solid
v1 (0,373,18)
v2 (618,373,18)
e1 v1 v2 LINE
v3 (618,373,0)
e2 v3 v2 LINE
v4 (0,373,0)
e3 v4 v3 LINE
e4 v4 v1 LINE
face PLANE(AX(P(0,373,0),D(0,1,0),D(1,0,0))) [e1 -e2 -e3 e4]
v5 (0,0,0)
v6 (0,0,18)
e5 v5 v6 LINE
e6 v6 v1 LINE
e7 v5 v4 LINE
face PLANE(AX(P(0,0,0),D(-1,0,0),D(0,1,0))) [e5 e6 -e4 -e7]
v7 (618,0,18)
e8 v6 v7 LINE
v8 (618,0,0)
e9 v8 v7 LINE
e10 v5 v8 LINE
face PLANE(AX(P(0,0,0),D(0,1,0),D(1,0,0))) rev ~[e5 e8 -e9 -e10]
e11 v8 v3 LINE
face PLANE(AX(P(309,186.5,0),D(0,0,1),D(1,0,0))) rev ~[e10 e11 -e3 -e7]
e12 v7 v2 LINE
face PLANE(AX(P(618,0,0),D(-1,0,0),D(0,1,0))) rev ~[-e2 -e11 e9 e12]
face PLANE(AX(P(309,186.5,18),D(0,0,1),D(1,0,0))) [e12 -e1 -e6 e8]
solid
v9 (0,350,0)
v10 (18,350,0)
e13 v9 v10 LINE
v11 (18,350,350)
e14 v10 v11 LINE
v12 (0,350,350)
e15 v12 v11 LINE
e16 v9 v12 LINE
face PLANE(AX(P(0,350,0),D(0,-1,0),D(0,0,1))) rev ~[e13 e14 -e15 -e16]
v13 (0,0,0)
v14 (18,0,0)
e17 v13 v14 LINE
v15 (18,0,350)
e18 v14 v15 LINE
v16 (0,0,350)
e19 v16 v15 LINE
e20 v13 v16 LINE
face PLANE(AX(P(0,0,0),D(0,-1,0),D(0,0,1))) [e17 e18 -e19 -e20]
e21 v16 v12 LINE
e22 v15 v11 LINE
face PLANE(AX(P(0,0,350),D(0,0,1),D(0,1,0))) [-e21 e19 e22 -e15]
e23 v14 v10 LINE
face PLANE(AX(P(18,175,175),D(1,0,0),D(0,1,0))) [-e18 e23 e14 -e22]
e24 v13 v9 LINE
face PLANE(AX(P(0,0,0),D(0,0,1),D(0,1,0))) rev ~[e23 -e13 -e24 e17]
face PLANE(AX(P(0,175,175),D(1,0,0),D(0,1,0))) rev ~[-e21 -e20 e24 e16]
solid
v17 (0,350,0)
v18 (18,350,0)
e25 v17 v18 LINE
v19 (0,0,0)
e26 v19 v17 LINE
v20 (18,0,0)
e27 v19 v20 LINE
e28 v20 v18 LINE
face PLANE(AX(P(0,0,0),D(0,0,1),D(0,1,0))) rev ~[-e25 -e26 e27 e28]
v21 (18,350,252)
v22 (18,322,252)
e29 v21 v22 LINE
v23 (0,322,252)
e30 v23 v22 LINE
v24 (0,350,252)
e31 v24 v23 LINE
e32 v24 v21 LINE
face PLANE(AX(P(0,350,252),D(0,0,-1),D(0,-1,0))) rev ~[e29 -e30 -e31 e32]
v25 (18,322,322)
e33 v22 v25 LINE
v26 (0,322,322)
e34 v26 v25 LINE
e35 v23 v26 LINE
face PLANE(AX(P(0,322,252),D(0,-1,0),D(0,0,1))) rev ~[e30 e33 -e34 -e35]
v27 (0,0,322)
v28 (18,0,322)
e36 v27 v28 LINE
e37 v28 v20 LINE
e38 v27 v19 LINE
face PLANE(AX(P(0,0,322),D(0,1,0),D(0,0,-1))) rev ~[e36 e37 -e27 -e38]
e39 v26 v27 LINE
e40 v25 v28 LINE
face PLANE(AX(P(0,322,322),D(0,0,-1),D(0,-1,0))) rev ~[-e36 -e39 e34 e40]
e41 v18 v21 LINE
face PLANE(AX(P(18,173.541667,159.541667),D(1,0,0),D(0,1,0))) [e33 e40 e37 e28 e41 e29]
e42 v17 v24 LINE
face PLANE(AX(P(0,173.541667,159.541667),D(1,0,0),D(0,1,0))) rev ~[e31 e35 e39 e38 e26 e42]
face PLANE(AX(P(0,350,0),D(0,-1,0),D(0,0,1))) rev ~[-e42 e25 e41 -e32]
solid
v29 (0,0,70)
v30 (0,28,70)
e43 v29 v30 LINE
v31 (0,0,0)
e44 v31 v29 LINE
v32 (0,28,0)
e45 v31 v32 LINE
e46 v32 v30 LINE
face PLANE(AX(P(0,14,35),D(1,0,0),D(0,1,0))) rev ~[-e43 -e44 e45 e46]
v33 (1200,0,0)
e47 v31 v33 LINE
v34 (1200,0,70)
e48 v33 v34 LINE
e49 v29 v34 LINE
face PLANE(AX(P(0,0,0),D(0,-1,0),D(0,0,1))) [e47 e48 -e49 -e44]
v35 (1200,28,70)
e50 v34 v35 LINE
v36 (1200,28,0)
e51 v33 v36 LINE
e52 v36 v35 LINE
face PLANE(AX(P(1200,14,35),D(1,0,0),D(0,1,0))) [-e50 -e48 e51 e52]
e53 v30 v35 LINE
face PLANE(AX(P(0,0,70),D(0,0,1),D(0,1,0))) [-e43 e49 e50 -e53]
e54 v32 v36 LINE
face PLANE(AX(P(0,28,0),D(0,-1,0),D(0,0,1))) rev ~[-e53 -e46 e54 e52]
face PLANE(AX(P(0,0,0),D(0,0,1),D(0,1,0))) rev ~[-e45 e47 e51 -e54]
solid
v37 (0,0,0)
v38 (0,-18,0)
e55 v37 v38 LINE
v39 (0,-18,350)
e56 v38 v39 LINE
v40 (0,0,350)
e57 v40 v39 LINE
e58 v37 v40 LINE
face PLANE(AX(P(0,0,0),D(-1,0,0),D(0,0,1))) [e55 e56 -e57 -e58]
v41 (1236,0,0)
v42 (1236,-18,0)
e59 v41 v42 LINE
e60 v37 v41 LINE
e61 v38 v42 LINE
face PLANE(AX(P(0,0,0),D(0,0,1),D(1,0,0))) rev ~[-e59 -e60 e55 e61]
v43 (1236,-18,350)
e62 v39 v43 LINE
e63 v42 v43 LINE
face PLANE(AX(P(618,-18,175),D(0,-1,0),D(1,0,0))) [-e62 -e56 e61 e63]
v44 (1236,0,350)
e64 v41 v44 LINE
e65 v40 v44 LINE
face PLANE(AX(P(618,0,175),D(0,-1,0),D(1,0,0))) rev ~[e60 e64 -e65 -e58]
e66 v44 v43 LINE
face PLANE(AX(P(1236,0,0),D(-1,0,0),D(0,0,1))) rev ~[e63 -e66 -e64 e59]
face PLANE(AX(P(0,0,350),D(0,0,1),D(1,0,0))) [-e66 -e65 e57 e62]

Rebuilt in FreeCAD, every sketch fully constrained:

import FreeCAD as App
import Part
import Sketcher
Q = App.Units.Quantity


def add_polygon(sketch, points):
    """Adds a closed chain of lines whose ends are joined by coincident constraints."""
    first, n = sketch.GeometryCount, len(points)
    for a, b in zip(points, points[1:] + points[:1]):
        sketch.addGeometry(Part.LineSegment(App.Vector(*a, 0), App.Vector(*b, 0)), False)
    for i in range(n):
        sketch.addConstraint(Sketcher.Constraint("Coincident", first + i, 2, first + (i + 1) % n, 1))

doc = App.newDocument("Part")
params = doc.addObject("Spreadsheet::Sheet", "Params")
for row, (alias, value) in enumerate([
    ("sketch1_width", "350 mm"),
    ("pad1_length", "18 mm"),
    ("sketch2_width", "28 mm"),
    ("sketch2_height", "70 mm"),
    ("pad2_length", "1200 mm"),
    ("sketch3_width", "350 mm"),
    ("sketch3_width2", "28 mm"),
    ("sketch3_height", "252 mm"),
    ("pad3_length", "18 mm"),
    ("sketch4_width", "1236 mm"),
    ("sketch4_height", "350 mm"),
    ("pad4_length", "18 mm"),
    ("sketch5_width", "618 mm"),
    ("sketch5_height", "373 mm"),
    ("pad5_length", "18 mm"),
], start=1):
    params.set(f"A{row}", alias)
    params.set(f"B{row}", "=" + value)
    params.setAlias(f"B{row}", alias)

body = doc.addObject("PartDesign::Body", "Body")

# Sketch on YZ plane
sketch1 = body.newObject("Sketcher::SketchObject", "Sketch")
sketch1.AttachmentSupport = (doc.getObject("YZ_Plane"), [""])
sketch1.MapMode = "FlatFace"
add_polygon(sketch1, [(0, 350), (0, 0), (350, 0), (350, 350)])  # lines 0-3
sketch1.addConstraint([
    Sketcher.Constraint("Vertical", 0),
    Sketcher.Constraint("Horizontal", 1),
    Sketcher.Constraint("Vertical", 2),
    Sketcher.Constraint("Horizontal", 3),
    Sketcher.Constraint("Coincident", 0, 2, -1, 1),
    Sketcher.Constraint("Equal", 3, 0),
    Sketcher.Constraint("DistanceX", 1, 1, 1, 2, Q("350 mm")),
])
sketch1.setExpression("Constraints[10]", "Params.sketch1_width")
pad1 = body.newObject("PartDesign::Pad", "Pad")
pad1.Profile = sketch1
pad1.setExpression("Length", "Params.pad1_length")
body2 = doc.addObject("PartDesign::Body", "Body001")

# Sketch on YZ plane
sketch2 = body2.newObject("Sketcher::SketchObject", "Sketch001")
sketch2.AttachmentSupport = (doc.getObject("YZ_Plane001"), [""])
sketch2.MapMode = "FlatFace"
add_polygon(sketch2, [(0, 70), (0, 0), (28, 0), (28, 70)])  # lines 0-3
sketch2.addConstraint([
    Sketcher.Constraint("Vertical", 0),
    Sketcher.Constraint("Horizontal", 1),
    Sketcher.Constraint("Vertical", 2),
    Sketcher.Constraint("Horizontal", 3),
    Sketcher.Constraint("Coincident", 0, 2, -1, 1),
    Sketcher.Constraint("DistanceX", 1, 1, 1, 2, Q("28 mm")),
    Sketcher.Constraint("DistanceY", 0, 2, 0, 1, Q("70 mm")),
])
sketch2.setExpression("Constraints[9]", "Params.sketch2_width")
sketch2.setExpression("Constraints[10]", "Params.sketch2_height")
pad2 = body2.newObject("PartDesign::Pad", "Pad001")
pad2.Profile = sketch2
pad2.setExpression("Length", "Params.pad2_length")
body3 = doc.addObject("PartDesign::Body", "Body002")

# Sketch on YZ plane
sketch3 = body3.newObject("Sketcher::SketchObject", "Sketch002")
sketch3.AttachmentSupport = (doc.getObject("YZ_Plane002"), [""])
sketch3.MapMode = "FlatFace"
add_polygon(sketch3, [(0, 322), (0, 0), (350, 0), (350, 252), (322, 252), (322, 322)])  # lines 0-5
sketch3.addConstraint([
    Sketcher.Constraint("Vertical", 0),
    Sketcher.Constraint("Horizontal", 1),
    Sketcher.Constraint("Vertical", 2),
    Sketcher.Constraint("Horizontal", 3),
    Sketcher.Constraint("Vertical", 4),
    Sketcher.Constraint("Horizontal", 5),
    Sketcher.Constraint("Coincident", 0, 2, -1, 1),
    Sketcher.Constraint("Equal", 5, 0),
    Sketcher.Constraint("DistanceX", 1, 1, 1, 2, Q("350 mm")),
    Sketcher.Constraint("DistanceX", 3, 2, 3, 1, Q("28 mm")),
    Sketcher.Constraint("DistanceY", 2, 1, 2, 2, Q("252 mm")),
])
sketch3.setExpression("Constraints[14]", "Params.sketch3_width")
sketch3.setExpression("Constraints[15]", "Params.sketch3_width2")
sketch3.setExpression("Constraints[16]", "Params.sketch3_height")
pad3 = body3.newObject("PartDesign::Pad", "Pad002")
pad3.Profile = sketch3
pad3.setExpression("Length", "Params.pad3_length")
body4 = doc.addObject("PartDesign::Body", "Body003")

# Sketch on XZ plane
sketch4 = body4.newObject("Sketcher::SketchObject", "Sketch003")
sketch4.AttachmentSupport = (doc.getObject("XZ_Plane003"), [""])
sketch4.MapMode = "FlatFace"
add_polygon(sketch4, [(0, 350), (0, 0), (1236, 0), (1236, 350)])  # lines 0-3
sketch4.addConstraint([
    Sketcher.Constraint("Vertical", 0),
    Sketcher.Constraint("Horizontal", 1),
    Sketcher.Constraint("Vertical", 2),
    Sketcher.Constraint("Horizontal", 3),
    Sketcher.Constraint("Coincident", 0, 2, -1, 1),
    Sketcher.Constraint("DistanceX", 1, 1, 1, 2, Q("1236 mm")),
    Sketcher.Constraint("DistanceY", 0, 2, 0, 1, Q("350 mm")),
])
sketch4.setExpression("Constraints[9]", "Params.sketch4_width")
sketch4.setExpression("Constraints[10]", "Params.sketch4_height")
pad4 = body4.newObject("PartDesign::Pad", "Pad003")
pad4.Profile = sketch4
pad4.setExpression("Length", "Params.pad4_length")
body5 = doc.addObject("PartDesign::Body", "Body004")

# Sketch on XY plane
sketch5 = body5.newObject("Sketcher::SketchObject", "Sketch004")
sketch5.AttachmentSupport = (doc.getObject("XY_Plane004"), [""])
sketch5.MapMode = "FlatFace"
add_polygon(sketch5, [(0, 373), (0, 0), (618, 0), (618, 373)])  # lines 0-3
sketch5.addConstraint([
    Sketcher.Constraint("Vertical", 0),
    Sketcher.Constraint("Horizontal", 1),
    Sketcher.Constraint("Vertical", 2),
    Sketcher.Constraint("Horizontal", 3),
    Sketcher.Constraint("Coincident", 0, 2, -1, 1),
    Sketcher.Constraint("DistanceX", 1, 1, 1, 2, Q("618 mm")),
    Sketcher.Constraint("DistanceY", 0, 2, 0, 1, Q("373 mm")),
])
sketch5.setExpression("Constraints[9]", "Params.sketch5_width")
sketch5.setExpression("Constraints[10]", "Params.sketch5_height")
pad5 = body5.newObject("PartDesign::Pad", "Pad004")
pad5.Profile = sketch5
pad5.setExpression("Length", "Params.pad5_length")

doc.recompute()
